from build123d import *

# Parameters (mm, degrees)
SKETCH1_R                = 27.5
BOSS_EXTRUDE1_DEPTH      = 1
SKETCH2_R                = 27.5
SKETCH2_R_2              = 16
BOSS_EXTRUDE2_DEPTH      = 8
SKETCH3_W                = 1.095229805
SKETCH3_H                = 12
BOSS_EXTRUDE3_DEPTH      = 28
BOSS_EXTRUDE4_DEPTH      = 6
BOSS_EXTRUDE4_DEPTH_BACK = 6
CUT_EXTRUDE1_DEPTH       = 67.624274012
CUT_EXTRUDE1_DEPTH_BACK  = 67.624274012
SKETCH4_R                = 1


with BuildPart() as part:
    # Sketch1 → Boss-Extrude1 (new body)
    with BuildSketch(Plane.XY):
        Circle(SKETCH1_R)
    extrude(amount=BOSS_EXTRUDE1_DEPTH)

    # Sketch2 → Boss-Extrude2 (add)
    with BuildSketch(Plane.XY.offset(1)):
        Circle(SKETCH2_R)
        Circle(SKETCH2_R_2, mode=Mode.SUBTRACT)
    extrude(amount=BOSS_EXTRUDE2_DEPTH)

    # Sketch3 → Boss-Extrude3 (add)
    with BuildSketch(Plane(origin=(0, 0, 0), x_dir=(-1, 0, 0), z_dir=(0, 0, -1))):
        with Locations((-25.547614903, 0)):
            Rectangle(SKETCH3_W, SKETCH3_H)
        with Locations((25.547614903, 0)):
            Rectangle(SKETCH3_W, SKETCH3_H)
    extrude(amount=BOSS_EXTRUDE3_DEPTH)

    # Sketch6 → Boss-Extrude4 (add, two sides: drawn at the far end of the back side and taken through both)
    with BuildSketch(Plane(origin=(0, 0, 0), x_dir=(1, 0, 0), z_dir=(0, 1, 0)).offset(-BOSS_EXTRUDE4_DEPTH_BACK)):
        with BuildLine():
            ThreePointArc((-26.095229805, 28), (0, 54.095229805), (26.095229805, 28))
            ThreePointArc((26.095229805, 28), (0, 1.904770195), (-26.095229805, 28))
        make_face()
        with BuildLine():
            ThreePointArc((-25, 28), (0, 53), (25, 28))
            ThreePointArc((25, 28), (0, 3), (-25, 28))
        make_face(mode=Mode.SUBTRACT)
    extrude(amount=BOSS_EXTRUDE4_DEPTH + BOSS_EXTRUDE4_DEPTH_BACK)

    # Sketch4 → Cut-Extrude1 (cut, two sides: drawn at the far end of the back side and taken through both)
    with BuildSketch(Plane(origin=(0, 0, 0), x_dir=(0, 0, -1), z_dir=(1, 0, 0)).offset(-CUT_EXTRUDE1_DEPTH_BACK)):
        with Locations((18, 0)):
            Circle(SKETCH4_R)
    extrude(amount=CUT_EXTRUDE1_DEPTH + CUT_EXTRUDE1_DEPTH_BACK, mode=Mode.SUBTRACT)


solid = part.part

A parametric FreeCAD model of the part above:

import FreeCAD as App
import Part
import Sketcher
from FreeCAD import Vector
Q = App.Units.Quantity

doc = App.newDocument("Part")
params = doc.addObject("Spreadsheet::Sheet", "Params")
for row, (alias, value) in enumerate([
    ("sketch1_diameter", "55 mm"),
    ("pad1_length", "1 mm"),
    ("sketch2_diameter", "55 mm"),
    ("sketch2_diameter2", "32 mm"),
    ("pad2_length", "8 mm"),
    ("sketch3_height", "12 mm"),
    ("pad3_length", "28 mm"),
    ("sketch4_diameter", "50 mm"),
    ("pad4_length", "6 mm"),
    ("pad4_length2", "6 mm"),
    ("sketch5_diameter", "2 mm"),
], start=1):
    params.set(f"A{row}", alias)
    params.set(f"B{row}", "=" + value)
    params.setAlias(f"B{row}", alias)

body = doc.addObject("PartDesign::Body", "Body")

# Sketch on XY plane
sketch1 = doc.addObject("Sketcher::SketchObject", "Sketch")
body.addObject(sketch1)
sketch1.AttachmentSupport = (doc.XY_Plane, [""])
sketch1.MapMode = "FlatFace"
sketch1.addGeometry(Part.Circle(Vector(0, 0, 0), Vector(0, 0, 1), 27.5), False)
sketch1.addConstraint([
    Sketcher.Constraint("Coincident", 0, 3, -1, 1),
    Sketcher.Constraint("Diameter", 0, Q("55 mm")),
])
sketch1.setExpression("Constraints[1]", "Params.sketch1_diameter")
pad1 = doc.addObject("PartDesign::Pad", "Pad")
body.addObject(pad1)
pad1.Profile = sketch1
pad1.setExpression("Length", "Params.pad1_length")

# Sketch on XY plane
sketch2 = doc.addObject("Sketcher::SketchObject", "Sketch001")
body.addObject(sketch2)
sketch2.AttachmentSupport = (doc.XY_Plane, [""])
sketch2.MapMode = "FlatFace"
sketch2.AttachmentOffset = App.Placement(Vector(0, 0, 1), App.Rotation())
sketch2.addGeometry([
    Part.Circle(Vector(0, 0, 0), Vector(0, 0, 1), 27.5),
    Part.Circle(Vector(0, 0, 0), Vector(0, 0, 1), 16),
], False)
sketch2.addConstraint([
    Sketcher.Constraint("Coincident", 0, 3, -1, 1),
    Sketcher.Constraint("Coincident", 1, 3, -1, 1),
    Sketcher.Constraint("Diameter", 0, Q("55 mm")),
    Sketcher.Constraint("Diameter", 1, Q("32 mm")),
])
sketch2.setExpression("Constraints[2]", "Params.sketch2_diameter")
sketch2.setExpression("Constraints[3]", "Params.sketch2_diameter2")
pad2 = doc.addObject("PartDesign::Pad", "Pad001")
body.addObject(pad2)
pad2.Profile = sketch2
pad2.setExpression("Length", "Params.pad2_length")

# Sketch on XY plane
sketch3 = doc.addObject("Sketcher::SketchObject", "Sketch002")
body.addObject(sketch3)
sketch3.AttachmentSupport = (doc.XY_Plane, [""])
sketch3.MapMode = "FlatFace"
sketch3.addGeometry([
    Part.LineSegment(Vector(26.09523, 6, 0), Vector(26.09523, -6, 0)),  # 0
    Part.LineSegment(Vector(26.09523, -6, 0), Vector(25, -6, 0)),  # 1
    Part.LineSegment(Vector(25, -6, 0), Vector(25, 6, 0)),  # 2
    Part.LineSegment(Vector(25, 6, 0), Vector(26.09523, 6, 0)),  # 3
    Part.LineSegment(Vector(-25, 6, 0), Vector(-25, -6, 0)),  # 4
    Part.LineSegment(Vector(-25, -6, 0), Vector(-26.09523, -6, 0)),  # 5
    Part.LineSegment(Vector(-26.09523, -6, 0), Vector(-26.09523, 6, 0)),  # 6
    Part.LineSegment(Vector(-26.09523, 6, 0), Vector(-25, 6, 0)),  # 7
], False)
sketch3.addConstraint([
    Sketcher.Constraint("Coincident", 0, 2, 1, 1),
    Sketcher.Constraint("Coincident", 1, 2, 2, 1),
    Sketcher.Constraint("Coincident", 2, 2, 3, 1),
    Sketcher.Constraint("Coincident", 3, 2, 0, 1),
    Sketcher.Constraint("Coincident", 4, 2, 5, 1),
    Sketcher.Constraint("Coincident", 5, 2, 6, 1),
    Sketcher.Constraint("Coincident", 6, 2, 7, 1),
    Sketcher.Constraint("Coincident", 7, 2, 4, 1),
    Sketcher.Constraint("Vertical", 0),
    Sketcher.Constraint("Horizontal", 1),
    Sketcher.Constraint("Vertical", 2),
    Sketcher.Constraint("Horizontal", 3),
    Sketcher.Constraint("Vertical", 4),
    Sketcher.Constraint("Horizontal", 5),
    Sketcher.Constraint("Vertical", 6),
    Sketcher.Constraint("Horizontal", 7),
    Sketcher.Constraint("Symmetric", 2, 2, 4, 2, -1, 1),
    Sketcher.Constraint("Symmetric", 0, 2, 6, 2, -1, 1),
    Sketcher.Constraint("Horizontal", 1, 2, 4, 2),
    Sketcher.Constraint("DistanceY", 0, 2, 0, 1, Q("12 mm")),
    Sketcher.Constraint("DistanceX", -1, 1, 1, 2, Q("25 mm")),
    Sketcher.Constraint("DistanceX", 1, 2, 1, 1, Q("1.09523 mm")),
])
sketch3.setExpression("Constraints[19]", "Params.sketch3_height")
pad3 = doc.addObject("PartDesign::Pad", "Pad002")
body.addObject(pad3)
pad3.Profile = sketch3
pad3.setExpression("Length", "Params.pad3_length")
pad3.Reversed = True

# Sketch on XZ plane
sketch4 = doc.addObject("Sketcher::SketchObject", "Sketch003")
body.addObject(sketch4)
sketch4.AttachmentSupport = (doc.XZ_Plane, [""])
sketch4.MapMode = "FlatFace"
sketch4.addGeometry([
    Part.Circle(Vector(0, -28, 0), Vector(0, 0, 1), 26.09523),
    Part.Circle(Vector(0, -28, 0), Vector(0, 0, 1), 25),
], False)
sketch4.addConstraint([
    Sketcher.Constraint("Coincident", 1, 3, 0, 3),
    Sketcher.Constraint("PointOnObject", 0, 3, -2),
    Sketcher.Constraint("Diameter", 1, Q("50 mm")),
    Sketcher.Constraint("DistanceY", 0, 3, -1, 1, Q("28 mm")),
    Sketcher.Constraint("Diameter", 0, Q("52.19046 mm")),
])
sketch4.setExpression("Constraints[2]", "Params.sketch4_diameter")
pad4 = doc.addObject("PartDesign::Pad", "Pad003")
body.addObject(pad4)
pad4.Profile = sketch4
pad4.Type = "TwoLengths"
pad4.setExpression("Length", "Params.pad4_length")
pad4.setExpression("Length2", "Params.pad4_length2")
pad4.Reversed = True

# Sketch on YZ plane
sketch5 = doc.addObject("Sketcher::SketchObject", "Sketch004")
body.addObject(sketch5)
sketch5.AttachmentSupport = (doc.YZ_Plane, [""])
sketch5.MapMode = "FlatFace"
sketch5.addGeometry(Part.Circle(Vector(0, -18, 0), Vector(0, 0, 1), 1), False)
sketch5.addConstraint([
    Sketcher.Constraint("PointOnObject", 0, 3, -2),
    Sketcher.Constraint("Diameter", 0, Q("2 mm")),
    Sketcher.Constraint("DistanceY", 0, 3, -1, 1, Q("18 mm")),
])
sketch5.setExpression("Constraints[1]", "Params.sketch5_diameter")
pocket1 = doc.addObject("PartDesign::Pocket", "Pocket")
body.addObject(pocket1)
pocket1.Profile = sketch5
pocket1.Type = "ThroughAll"
pocket1.Midplane = True

doc.recompute()
